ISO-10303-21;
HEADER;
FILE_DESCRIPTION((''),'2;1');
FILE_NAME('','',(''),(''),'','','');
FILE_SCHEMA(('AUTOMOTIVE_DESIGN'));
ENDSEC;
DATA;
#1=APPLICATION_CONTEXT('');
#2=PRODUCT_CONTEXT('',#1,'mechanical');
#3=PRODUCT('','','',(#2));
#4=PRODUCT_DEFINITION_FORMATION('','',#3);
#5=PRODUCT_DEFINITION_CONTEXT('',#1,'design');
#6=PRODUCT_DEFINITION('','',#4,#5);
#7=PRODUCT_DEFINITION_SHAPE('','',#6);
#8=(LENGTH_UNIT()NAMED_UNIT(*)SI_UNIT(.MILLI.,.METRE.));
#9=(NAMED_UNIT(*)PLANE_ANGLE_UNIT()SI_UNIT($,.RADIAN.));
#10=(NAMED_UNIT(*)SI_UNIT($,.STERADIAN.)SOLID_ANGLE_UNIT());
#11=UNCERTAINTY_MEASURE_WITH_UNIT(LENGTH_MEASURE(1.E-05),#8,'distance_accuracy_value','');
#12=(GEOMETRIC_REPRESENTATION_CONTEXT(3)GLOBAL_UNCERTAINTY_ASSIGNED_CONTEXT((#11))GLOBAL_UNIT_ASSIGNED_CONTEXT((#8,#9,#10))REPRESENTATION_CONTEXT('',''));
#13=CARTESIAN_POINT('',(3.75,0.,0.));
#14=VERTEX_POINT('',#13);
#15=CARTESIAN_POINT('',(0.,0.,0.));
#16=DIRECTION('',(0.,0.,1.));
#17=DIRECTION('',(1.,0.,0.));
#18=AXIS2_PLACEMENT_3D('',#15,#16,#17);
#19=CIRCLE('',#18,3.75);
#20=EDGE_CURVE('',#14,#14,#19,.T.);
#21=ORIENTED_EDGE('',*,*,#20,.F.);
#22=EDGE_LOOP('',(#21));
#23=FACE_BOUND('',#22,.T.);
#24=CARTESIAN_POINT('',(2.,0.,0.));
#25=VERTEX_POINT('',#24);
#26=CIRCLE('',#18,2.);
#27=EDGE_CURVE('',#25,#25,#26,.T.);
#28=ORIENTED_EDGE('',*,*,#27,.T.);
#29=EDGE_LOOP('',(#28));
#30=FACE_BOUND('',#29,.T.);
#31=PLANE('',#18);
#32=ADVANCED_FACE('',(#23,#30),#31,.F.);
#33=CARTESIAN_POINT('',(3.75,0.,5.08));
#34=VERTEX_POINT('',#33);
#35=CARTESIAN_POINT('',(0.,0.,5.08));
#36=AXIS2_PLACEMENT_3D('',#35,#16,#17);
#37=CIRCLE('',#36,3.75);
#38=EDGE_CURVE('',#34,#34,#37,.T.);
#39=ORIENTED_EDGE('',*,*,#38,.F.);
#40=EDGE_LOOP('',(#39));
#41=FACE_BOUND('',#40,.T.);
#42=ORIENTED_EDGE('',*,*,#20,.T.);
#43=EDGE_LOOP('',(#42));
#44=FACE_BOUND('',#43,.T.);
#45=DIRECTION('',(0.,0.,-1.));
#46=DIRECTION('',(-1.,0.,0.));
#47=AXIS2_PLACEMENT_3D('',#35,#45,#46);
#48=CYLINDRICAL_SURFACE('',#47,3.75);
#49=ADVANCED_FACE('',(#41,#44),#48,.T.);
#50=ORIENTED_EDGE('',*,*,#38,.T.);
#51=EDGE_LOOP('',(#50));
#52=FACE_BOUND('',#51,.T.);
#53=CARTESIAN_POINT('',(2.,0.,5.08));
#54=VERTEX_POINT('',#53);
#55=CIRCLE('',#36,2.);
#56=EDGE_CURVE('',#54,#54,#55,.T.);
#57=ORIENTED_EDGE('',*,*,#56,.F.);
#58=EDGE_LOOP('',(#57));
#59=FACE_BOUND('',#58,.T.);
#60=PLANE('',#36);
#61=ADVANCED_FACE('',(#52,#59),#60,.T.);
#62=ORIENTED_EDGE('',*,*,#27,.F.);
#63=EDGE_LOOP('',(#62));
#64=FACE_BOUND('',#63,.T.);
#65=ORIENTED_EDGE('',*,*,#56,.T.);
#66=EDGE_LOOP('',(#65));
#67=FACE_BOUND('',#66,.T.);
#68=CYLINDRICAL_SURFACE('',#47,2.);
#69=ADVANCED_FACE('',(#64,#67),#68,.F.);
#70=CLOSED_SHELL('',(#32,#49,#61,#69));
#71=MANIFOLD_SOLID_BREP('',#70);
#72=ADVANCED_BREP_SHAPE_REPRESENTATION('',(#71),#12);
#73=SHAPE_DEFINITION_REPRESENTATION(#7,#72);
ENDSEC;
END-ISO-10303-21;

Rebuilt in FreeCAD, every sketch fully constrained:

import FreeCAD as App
import Part
import Sketcher
from FreeCAD import Vector
Q = App.Units.Quantity

doc = App.newDocument("Part")
params = doc.addObject("Spreadsheet::Sheet", "Params")
for row, (alias, value) in enumerate([
    ("sketch1_diameter", "4 mm"),
    ("sketch1_diameter2", "7.5 mm"),
    ("pad1_length", "5.08 mm"),
], start=1):
    params.set(f"A{row}", alias)
    params.set(f"B{row}", "=" + value)
    params.setAlias(f"B{row}", alias)

body = doc.addObject("PartDesign::Body", "Body")

sketch1 = doc.addObject("Sketcher::SketchObject", "Sketch")
body.addObject(sketch1)
sketch1.AttachmentSupport = (doc.XY_Plane, [""])
sketch1.MapMode = "FlatFace"
sketch1.addGeometry([
    Part.Circle(Vector(0, 0, 0), Vector(0, 0, 1), 3.8),
    Part.Circle(Vector(0, 0, 0), Vector(0, 0, 1), 2),
], False)
sketch1.addConstraint([
    Sketcher.Constraint("Coincident", 0, 3, -1, 1),
    Sketcher.Constraint("Coincident", 1, 3, -1, 1),
    Sketcher.Constraint("Diameter", 1, Q("4 mm")),
    Sketcher.Constraint("Diameter", 0, Q("7.5 mm")),
])
sketch1.setExpression("Constraints[2]", "Params.sketch1_diameter")
sketch1.setExpression("Constraints[3]", "Params.sketch1_diameter2")
pad1 = doc.addObject("PartDesign::Pad", "Pad")
body.addObject(pad1)
pad1.Profile = sketch1
pad1.setExpression("Length", "Params.pad1_length")

doc.recompute()
